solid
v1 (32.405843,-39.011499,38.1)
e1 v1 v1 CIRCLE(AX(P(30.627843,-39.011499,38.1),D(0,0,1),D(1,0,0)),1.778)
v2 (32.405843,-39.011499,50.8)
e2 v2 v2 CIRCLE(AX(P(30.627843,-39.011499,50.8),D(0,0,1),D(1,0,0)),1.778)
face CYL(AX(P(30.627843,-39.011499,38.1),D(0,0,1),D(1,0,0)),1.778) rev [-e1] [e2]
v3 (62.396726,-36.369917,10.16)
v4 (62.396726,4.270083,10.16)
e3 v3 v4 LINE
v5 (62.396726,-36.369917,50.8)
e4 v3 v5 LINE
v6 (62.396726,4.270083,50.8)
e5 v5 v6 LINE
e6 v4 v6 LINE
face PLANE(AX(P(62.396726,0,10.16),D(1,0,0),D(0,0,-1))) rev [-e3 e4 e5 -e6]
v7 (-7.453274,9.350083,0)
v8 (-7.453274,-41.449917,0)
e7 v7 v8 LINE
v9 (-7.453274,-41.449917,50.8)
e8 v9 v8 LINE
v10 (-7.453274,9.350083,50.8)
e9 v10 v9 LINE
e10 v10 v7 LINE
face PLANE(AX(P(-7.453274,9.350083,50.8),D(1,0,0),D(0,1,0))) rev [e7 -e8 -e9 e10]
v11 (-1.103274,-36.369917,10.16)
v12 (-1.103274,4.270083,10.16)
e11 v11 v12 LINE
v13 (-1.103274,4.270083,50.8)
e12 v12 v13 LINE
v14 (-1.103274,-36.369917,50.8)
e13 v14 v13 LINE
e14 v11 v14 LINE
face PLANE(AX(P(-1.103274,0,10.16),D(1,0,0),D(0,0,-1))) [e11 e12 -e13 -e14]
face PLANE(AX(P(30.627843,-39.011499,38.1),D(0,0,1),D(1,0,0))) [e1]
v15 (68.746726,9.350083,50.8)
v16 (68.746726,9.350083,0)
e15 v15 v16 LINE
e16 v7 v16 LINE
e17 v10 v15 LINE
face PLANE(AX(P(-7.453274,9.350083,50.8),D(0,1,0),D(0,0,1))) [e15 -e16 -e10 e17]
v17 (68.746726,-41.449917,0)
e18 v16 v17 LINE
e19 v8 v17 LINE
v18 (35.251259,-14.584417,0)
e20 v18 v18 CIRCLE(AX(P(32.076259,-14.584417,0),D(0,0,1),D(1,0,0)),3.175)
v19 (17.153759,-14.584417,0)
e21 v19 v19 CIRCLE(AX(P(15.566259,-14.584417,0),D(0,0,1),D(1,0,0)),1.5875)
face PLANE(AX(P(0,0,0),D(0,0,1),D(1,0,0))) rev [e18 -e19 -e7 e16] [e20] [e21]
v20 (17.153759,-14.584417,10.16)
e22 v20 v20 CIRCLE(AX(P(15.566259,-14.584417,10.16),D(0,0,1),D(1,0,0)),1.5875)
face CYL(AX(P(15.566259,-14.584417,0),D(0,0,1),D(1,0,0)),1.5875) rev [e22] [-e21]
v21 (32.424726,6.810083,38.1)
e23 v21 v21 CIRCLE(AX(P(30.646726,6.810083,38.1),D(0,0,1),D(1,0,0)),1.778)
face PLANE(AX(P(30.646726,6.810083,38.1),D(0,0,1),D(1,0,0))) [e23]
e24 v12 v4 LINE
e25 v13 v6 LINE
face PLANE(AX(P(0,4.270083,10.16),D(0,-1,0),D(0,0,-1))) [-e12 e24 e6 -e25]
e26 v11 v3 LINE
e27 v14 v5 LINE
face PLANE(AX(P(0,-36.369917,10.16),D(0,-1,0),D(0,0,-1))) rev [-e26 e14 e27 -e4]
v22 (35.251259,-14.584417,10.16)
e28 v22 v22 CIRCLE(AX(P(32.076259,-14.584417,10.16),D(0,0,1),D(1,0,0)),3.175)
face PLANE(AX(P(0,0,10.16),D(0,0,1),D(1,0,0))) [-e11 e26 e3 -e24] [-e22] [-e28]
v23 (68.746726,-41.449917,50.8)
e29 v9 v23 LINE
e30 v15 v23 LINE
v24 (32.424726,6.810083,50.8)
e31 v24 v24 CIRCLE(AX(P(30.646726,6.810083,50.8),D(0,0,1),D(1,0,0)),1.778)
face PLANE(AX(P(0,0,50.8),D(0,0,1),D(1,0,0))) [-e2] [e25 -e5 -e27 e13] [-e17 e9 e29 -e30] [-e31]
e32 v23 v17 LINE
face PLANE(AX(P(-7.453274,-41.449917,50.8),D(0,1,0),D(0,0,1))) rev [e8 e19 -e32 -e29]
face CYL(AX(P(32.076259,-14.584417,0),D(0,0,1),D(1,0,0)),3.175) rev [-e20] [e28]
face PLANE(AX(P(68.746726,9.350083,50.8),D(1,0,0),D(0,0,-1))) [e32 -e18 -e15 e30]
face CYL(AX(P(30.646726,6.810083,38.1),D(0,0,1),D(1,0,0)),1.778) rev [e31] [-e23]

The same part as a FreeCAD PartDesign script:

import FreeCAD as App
import Part
import Sketcher
from FreeCAD import Vector
Q = App.Units.Quantity


def add_polygon(sketch, points):
    """Adds a closed chain of lines whose ends are joined by coincident constraints."""
    first, n = sketch.GeometryCount, len(points)
    for a, b in zip(points, points[1:] + points[:1]):
        sketch.addGeometry(Part.LineSegment(App.Vector(*a, 0), App.Vector(*b, 0)), False)
    for i in range(n):
        sketch.addConstraint(Sketcher.Constraint("Coincident", first + i, 2, first + (i + 1) % n, 1))

doc = App.newDocument("Part")
body = doc.addObject("PartDesign::Body", "Body")

sketch1 = doc.addObject("Sketcher::SketchObject", "Sketch")
body.addObject(sketch1)
sketch1.AttachmentSupport = (doc.XY_Plane, [""])
sketch1.MapMode = "FlatFace"
add_polygon(sketch1, [(-7.453274, 9.350083), (-7.453274, -41.449917), (68.746726, -41.449917), (68.746726, 9.350083)])
sketch1.addConstraint([
    Sketcher.Constraint("Vertical", 0),
    Sketcher.Constraint("Horizontal", 1),
    Sketcher.Constraint("Vertical", 2),
    Sketcher.Constraint("Horizontal", 3),
    Sketcher.Constraint("DistanceX", 1, 1, 1, 2, Q("3 in")),
    Sketcher.Constraint("DistanceY", 0, 2, 0, 1, Q("2 in")),
    Sketcher.Constraint("DistanceX", 0, 2, -1, 1, Q("7.453274 mm")),
    Sketcher.Constraint("DistanceY", 0, 2, -1, 1, Q("41.449917 mm")),
])
pad1 = doc.addObject("PartDesign::Pad", "Pad")
body.addObject(pad1)
pad1.Profile = sketch1
pad1.Length = Q("2 in")

sketch2 = doc.addObject("Sketcher::SketchObject", "Sketch001")
body.addObject(sketch2)
sketch2.AttachmentSupport = (doc.XY_Plane, [""])
sketch2.MapMode = "FlatFace"
sketch2.AttachmentOffset = App.Placement(Vector(0, 0, 2 * 25.4), App.Rotation())
add_polygon(sketch2, [(-1.103274, 4.270083), (-1.103274, -36.369917), (62.396726, -36.369917), (62.396726, 4.270083)])
sketch2.addConstraint([
    Sketcher.Constraint("Vertical", 0),
    Sketcher.Constraint("Horizontal", 1),
    Sketcher.Constraint("Vertical", 2),
    Sketcher.Constraint("Horizontal", 3),
    Sketcher.Constraint("DistanceX", 1, 1, 1, 2, Q("2.5 in")),
    Sketcher.Constraint("DistanceY", 0, 2, 0, 1, Q("1.6 in")),
    Sketcher.Constraint("DistanceX", 0, 2, -1, 1, Q("1.103274 mm")),
    Sketcher.Constraint("DistanceY", 0, 2, -1, 1, Q("36.369917 mm")),
])
pocket1 = doc.addObject("PartDesign::Pocket", "Pocket")
body.addObject(pocket1)
pocket1.Profile = sketch2
pocket1.Length = Q("1.6 in")

sketch3 = doc.addObject("Sketcher::SketchObject", "Sketch002")
body.addObject(sketch3)
sketch3.AttachmentSupport = (doc.XY_Plane, [""])
sketch3.MapMode = "FlatFace"
sketch3.AttachmentOffset = App.Placement(Vector(0, 0, 0.4 * 25.4), App.Rotation())
sketch3.addGeometry([
    Part.Circle(Vector(15.566259, -14.584417, 0), Vector(0, 0, 1), 1.5875),
    Part.Circle(Vector(32.076259, -14.584417, 0), Vector(0, 0, 1), 3.175),
], False)
sketch3.addConstraint([
    Sketcher.Constraint("Horizontal", 0, 3, 1, 3),
    Sketcher.Constraint("Diameter", 1, Q("0.25 in")),
    Sketcher.Constraint("Diameter", 0, Q("0.125 in")),
    Sketcher.Constraint("DistanceX", 0, 3, 1, 3, Q("0.65 in")),
    Sketcher.Constraint("DistanceX", -1, 1, 0, 3, Q("15.566259 mm")),
    Sketcher.Constraint("DistanceY", 0, 3, -1, 1, Q("14.584417 mm")),
])
pocket2 = doc.addObject("PartDesign::Pocket", "Pocket001")
body.addObject(pocket2)
pocket2.Profile = sketch3
pocket2.Type = "ThroughAll"

sketch4 = doc.addObject("Sketcher::SketchObject", "Sketch003")
body.addObject(sketch4)
sketch4.AttachmentSupport = (doc.XY_Plane, [""])
sketch4.MapMode = "FlatFace"
sketch4.AttachmentOffset = App.Placement(Vector(0, 0, 2 * 25.4), App.Rotation())
sketch4.addGeometry(Part.Circle(Vector(30.646726, 6.810083, 0), Vector(0, 0, 1), 1.778), False)
sketch4.addConstraint([
    Sketcher.Constraint("Diameter", 0, Q("0.14 in")),
    Sketcher.Constraint("DistanceX", -1, 1, 0, 3, Q("30.646726 mm")),
    Sketcher.Constraint("DistanceY", -1, 1, 0, 3, Q("6.810083 mm")),
])
pocket3 = doc.addObject("PartDesign::Pocket", "Pocket002")
body.addObject(pocket3)
pocket3.Profile = sketch4
pocket3.Length = Q("0.5 in")

sketch5 = doc.addObject("Sketcher::SketchObject", "Sketch004")
body.addObject(sketch5)
sketch5.AttachmentSupport = (doc.XY_Plane, [""])
sketch5.MapMode = "FlatFace"
sketch5.AttachmentOffset = App.Placement(Vector(0, 0, 2 * 25.4), App.Rotation())
sketch5.addGeometry(Part.Circle(Vector(30.627843, -39.011499, 0), Vector(0, 0, 1), 1.778), False)
sketch5.addConstraint([
    Sketcher.Constraint("Diameter", 0, Q("0.14 in")),
    Sketcher.Constraint("DistanceY", 0, 3, -1, 1, Q("39.011499 mm")),
    Sketcher.Constraint("DistanceX", -1, 1, 0, 3, Q("30.627843 mm")),
])
pocket4 = doc.addObject("PartDesign::Pocket", "Pocket003")
body.addObject(pocket4)
pocket4.Profile = sketch5
pocket4.Length = Q("0.5 in")

doc.recompute()
